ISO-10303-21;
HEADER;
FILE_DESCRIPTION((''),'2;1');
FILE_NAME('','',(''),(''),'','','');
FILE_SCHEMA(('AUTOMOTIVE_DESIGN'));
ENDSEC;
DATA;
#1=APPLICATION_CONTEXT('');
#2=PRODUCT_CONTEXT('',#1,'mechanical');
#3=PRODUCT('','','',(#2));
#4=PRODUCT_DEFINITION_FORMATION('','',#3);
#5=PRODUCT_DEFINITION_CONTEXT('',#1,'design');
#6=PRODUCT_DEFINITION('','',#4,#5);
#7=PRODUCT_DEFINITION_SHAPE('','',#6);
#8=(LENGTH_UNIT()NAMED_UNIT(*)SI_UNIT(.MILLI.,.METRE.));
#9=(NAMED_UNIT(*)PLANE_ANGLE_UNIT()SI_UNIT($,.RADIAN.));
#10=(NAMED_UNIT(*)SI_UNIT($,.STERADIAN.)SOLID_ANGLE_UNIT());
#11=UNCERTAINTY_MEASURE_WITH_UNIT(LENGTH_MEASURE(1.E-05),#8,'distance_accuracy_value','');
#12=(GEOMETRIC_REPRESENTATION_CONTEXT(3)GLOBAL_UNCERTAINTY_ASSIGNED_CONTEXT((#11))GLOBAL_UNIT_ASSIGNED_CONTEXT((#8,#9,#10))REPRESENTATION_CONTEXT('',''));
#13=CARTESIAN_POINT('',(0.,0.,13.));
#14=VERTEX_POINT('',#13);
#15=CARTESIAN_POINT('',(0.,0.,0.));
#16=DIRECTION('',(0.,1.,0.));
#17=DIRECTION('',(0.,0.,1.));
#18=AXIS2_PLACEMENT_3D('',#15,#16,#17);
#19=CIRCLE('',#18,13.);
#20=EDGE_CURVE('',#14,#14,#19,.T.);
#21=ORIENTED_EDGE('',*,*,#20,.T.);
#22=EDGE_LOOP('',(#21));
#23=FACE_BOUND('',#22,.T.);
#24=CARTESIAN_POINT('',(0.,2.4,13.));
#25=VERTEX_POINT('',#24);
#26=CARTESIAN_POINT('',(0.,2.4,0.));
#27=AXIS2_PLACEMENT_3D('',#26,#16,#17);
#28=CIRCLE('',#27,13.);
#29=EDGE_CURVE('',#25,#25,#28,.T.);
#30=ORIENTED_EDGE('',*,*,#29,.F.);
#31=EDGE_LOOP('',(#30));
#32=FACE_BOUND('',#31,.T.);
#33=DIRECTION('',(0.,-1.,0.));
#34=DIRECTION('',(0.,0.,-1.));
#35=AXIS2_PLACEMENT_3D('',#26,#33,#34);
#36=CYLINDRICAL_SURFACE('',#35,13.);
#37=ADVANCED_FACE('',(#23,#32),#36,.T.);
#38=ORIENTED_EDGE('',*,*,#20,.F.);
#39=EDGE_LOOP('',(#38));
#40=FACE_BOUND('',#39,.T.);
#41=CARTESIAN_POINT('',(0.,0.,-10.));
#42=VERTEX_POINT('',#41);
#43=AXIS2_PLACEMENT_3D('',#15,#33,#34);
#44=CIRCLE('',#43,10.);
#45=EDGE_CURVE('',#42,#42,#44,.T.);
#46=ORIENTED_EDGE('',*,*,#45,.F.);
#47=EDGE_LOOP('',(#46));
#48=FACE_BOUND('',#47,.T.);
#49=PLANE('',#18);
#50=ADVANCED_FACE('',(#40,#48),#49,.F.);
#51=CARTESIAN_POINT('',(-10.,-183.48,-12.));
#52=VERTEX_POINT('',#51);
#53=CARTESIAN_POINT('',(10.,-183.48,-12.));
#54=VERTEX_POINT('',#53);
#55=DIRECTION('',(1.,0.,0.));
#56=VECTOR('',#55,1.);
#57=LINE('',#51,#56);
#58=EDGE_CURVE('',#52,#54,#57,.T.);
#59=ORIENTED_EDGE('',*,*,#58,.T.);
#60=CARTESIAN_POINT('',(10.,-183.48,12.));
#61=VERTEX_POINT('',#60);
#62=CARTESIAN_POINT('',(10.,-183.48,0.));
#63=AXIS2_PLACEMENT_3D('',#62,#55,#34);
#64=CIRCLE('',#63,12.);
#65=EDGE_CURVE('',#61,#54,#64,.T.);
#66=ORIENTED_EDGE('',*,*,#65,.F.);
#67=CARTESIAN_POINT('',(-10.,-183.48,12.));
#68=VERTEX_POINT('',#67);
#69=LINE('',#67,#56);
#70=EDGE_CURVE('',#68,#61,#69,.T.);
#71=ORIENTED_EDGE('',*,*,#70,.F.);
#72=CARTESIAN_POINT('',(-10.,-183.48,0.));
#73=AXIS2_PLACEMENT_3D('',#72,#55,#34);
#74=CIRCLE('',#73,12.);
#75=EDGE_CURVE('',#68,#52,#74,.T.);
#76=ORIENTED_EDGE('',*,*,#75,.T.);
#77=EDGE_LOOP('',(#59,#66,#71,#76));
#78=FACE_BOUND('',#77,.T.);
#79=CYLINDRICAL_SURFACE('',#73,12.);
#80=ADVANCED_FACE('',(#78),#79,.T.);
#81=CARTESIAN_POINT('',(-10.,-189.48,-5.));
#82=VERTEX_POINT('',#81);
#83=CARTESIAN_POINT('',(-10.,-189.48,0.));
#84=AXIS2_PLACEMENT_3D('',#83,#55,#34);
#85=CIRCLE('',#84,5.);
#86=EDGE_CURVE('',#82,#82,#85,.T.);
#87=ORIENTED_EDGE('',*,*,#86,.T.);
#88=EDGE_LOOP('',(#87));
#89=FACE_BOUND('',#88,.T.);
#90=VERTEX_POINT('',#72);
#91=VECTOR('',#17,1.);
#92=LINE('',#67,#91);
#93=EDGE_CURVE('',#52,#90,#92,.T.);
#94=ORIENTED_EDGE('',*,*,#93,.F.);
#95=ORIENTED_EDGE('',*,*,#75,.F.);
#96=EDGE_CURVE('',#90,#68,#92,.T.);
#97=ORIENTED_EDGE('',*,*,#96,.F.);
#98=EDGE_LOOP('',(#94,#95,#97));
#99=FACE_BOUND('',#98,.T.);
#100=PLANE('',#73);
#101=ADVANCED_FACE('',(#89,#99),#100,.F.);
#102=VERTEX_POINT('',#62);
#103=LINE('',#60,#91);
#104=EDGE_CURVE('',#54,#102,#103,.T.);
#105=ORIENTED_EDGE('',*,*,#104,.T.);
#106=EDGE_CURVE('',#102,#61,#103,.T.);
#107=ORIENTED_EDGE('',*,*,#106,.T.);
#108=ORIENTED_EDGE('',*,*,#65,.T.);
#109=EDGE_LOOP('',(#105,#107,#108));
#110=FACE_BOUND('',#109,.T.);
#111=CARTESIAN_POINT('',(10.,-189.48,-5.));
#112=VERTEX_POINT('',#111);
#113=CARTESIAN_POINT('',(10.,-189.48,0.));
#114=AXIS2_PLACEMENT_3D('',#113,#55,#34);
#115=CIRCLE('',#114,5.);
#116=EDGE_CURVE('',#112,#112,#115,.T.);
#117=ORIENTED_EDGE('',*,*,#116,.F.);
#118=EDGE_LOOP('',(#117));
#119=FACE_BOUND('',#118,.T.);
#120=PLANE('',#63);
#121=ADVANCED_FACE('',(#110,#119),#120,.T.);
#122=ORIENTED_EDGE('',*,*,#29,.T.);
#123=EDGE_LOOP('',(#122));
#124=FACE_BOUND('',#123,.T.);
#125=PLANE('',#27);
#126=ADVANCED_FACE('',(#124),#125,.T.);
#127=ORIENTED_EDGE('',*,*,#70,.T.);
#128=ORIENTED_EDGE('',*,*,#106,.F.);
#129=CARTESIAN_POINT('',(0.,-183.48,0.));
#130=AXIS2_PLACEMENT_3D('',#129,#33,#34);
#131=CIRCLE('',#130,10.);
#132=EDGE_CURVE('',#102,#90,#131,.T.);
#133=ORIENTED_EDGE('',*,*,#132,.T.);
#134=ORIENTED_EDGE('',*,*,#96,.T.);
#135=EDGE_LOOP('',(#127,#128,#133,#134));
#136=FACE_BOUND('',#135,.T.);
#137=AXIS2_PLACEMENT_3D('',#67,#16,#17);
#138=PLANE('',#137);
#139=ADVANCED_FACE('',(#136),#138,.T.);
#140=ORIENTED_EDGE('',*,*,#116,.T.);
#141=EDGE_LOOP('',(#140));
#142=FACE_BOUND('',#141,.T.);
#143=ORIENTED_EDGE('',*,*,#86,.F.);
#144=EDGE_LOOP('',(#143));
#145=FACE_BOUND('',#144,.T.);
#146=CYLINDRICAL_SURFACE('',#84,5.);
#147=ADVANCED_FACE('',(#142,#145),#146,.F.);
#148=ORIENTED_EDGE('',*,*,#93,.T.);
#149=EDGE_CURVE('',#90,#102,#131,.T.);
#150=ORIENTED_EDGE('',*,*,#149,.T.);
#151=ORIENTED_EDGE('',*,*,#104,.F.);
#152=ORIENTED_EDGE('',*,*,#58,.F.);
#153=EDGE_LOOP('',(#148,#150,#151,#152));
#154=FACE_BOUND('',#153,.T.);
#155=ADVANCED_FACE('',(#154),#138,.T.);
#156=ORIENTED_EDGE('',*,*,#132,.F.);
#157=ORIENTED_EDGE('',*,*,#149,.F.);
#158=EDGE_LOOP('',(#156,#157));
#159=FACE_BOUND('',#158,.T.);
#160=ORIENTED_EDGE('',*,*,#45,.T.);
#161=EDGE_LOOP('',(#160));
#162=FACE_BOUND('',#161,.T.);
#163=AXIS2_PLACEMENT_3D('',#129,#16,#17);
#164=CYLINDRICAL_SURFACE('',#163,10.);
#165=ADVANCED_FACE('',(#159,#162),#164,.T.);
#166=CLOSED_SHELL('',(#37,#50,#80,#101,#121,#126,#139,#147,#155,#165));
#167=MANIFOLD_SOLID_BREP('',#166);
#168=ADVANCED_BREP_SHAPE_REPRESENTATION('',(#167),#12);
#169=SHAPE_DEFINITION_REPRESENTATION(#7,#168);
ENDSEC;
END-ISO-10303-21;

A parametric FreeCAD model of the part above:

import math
import FreeCAD as App
import Part
import Sketcher
from FreeCAD import Vector
Q = App.Units.Quantity

doc = App.newDocument("Part")
body = doc.addObject("PartDesign::Body", "Body")

# Sketch on XZ plane
sketch1 = doc.addObject("Sketcher::SketchObject", "Sketch")
body.addObject(sketch1)
sketch1.AttachmentSupport = (doc.XZ_Plane, [""])
sketch1.MapMode = "FlatFace"
sketch1.addGeometry(Part.Circle(Vector(0, 0, 0), Vector(0, 0, 1), 13), False)
sketch1.addConstraint([
    Sketcher.Constraint("Coincident", 0, 3, -1, 1),
    Sketcher.Constraint("Diameter", 0, Q("26 mm")),
])
pad1 = doc.addObject("PartDesign::Pad", "Pad")
body.addObject(pad1)
pad1.Profile = sketch1
pad1.Length = 2.4
pad1.Reversed = True

# Sketch on XZ plane
sketch2 = doc.addObject("Sketcher::SketchObject", "Sketch001")
body.addObject(sketch2)
sketch2.AttachmentSupport = (doc.XZ_Plane, [""])
sketch2.MapMode = "FlatFace"
sketch2.addGeometry(Part.Circle(Vector(0, 0, 0), Vector(0, 0, 1), 10), False)
sketch2.addConstraint([
    Sketcher.Constraint("Coincident", 0, 3, -1, 1),
    Sketcher.Constraint("Diameter", 0, Q("20 mm")),
])
pad2 = doc.addObject("PartDesign::Pad", "Pad001")
body.addObject(pad2)
pad2.Profile = sketch2
pad2.Length = 183.48

# Sketch on YZ plane
sketch3 = doc.addObject("Sketcher::SketchObject", "Sketch002")
body.addObject(sketch3)
sketch3.AttachmentSupport = (doc.YZ_Plane, [""])
sketch3.MapMode = "FlatFace"
sketch3.addGeometry([
    Part.LineSegment(Vector(-183.48, -12, 0), Vector(-183.48, 12, 0)),
    Part.ArcOfCircle(Part.Circle(Vector(-183.48, 0, 0), Vector(0, 0, 1), 12), math.radians(90), math.radians(270)),
    Part.Circle(Vector(-189.48, 0, 0), Vector(0, 0, 1), 5),
], False)
sketch3.addConstraint([
    Sketcher.Constraint("Coincident", 0, 1, 1, 2),
    Sketcher.Constraint("Coincident", 1, 1, 0, 2),
    Sketcher.Constraint("Vertical", 0),
    Sketcher.Constraint("PointOnObject", 1, 3, -1),
    Sketcher.Constraint("PointOnObject", 2, 3, -1),
    Sketcher.Constraint("Vertical", 1, 3, 0, 1),
    Sketcher.Constraint("Diameter", 2, Q("10 mm")),
    Sketcher.Constraint("Radius", 1, Q("12 mm")),
    Sketcher.Constraint("DistanceX", 2, 3, 1, 3, Q("6 mm")),
    Sketcher.Constraint("DistanceX", 1, 3, -1, 1, Q("183.48 mm")),
])
pad3 = doc.addObject("PartDesign::Pad", "Pad002")
body.addObject(pad3)
pad3.Profile = sketch3
pad3.Type = "TwoLengths"
pad3.Length = 10
pad3.Length2 = 10

doc.recompute()
